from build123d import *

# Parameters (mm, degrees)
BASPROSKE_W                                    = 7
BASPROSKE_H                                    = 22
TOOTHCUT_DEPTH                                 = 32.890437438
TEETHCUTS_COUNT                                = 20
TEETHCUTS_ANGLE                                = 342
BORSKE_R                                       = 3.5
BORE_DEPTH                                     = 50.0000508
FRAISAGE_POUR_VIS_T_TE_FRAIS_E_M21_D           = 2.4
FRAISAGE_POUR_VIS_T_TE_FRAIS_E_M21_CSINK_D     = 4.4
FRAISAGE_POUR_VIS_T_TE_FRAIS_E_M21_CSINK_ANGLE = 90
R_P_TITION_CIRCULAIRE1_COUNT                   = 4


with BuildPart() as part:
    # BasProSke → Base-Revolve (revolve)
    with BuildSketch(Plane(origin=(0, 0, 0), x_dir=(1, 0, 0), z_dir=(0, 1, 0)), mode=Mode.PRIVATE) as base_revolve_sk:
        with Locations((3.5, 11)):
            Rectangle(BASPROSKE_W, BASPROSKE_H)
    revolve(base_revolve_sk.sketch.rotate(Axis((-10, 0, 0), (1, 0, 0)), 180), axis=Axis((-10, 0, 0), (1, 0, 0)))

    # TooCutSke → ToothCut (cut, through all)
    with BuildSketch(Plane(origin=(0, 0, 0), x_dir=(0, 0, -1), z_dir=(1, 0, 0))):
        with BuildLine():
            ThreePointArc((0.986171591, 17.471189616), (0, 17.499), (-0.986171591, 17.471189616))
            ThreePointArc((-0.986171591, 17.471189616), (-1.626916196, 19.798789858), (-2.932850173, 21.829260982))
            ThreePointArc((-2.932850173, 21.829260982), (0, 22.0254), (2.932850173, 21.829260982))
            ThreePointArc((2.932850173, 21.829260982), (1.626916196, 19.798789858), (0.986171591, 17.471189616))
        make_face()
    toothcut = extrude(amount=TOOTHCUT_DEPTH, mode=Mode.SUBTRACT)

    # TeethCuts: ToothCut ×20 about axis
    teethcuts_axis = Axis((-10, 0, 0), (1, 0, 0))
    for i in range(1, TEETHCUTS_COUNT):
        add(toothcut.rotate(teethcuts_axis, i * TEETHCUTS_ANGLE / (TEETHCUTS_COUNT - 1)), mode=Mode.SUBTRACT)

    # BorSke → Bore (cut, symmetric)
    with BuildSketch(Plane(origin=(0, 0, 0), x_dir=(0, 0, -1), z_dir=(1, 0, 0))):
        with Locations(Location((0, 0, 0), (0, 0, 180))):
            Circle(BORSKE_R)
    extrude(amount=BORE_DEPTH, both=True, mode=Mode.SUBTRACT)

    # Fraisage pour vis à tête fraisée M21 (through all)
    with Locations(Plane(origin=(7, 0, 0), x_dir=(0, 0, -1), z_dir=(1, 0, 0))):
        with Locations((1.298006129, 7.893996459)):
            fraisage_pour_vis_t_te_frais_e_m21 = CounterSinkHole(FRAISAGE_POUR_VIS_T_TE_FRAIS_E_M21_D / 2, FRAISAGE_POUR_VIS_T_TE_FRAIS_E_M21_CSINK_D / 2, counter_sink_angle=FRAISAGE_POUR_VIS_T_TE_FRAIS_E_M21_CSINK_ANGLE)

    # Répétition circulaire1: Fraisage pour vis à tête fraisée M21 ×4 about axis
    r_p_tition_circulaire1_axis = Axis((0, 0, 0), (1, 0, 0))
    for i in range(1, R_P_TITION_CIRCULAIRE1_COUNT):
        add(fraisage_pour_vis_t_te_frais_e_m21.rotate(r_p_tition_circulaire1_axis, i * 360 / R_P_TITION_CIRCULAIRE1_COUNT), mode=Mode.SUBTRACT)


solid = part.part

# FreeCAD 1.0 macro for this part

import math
import FreeCAD as App
import Part
import Sketcher

V = App.Vector


def add_polygon(sketch, points):
    """Adds a closed chain of lines whose ends are joined by coincident constraints."""
    first, n = sketch.GeometryCount, len(points)
    for a, b in zip(points, points[1:] + points[:1]):
        sketch.addGeometry(Part.LineSegment(App.Vector(*a, 0), App.Vector(*b, 0)), False)
    for i in range(n):
        sketch.addConstraint(Sketcher.Constraint("Coincident", first + i, 2, first + (i + 1) % n, 1))

doc = App.newDocument("Part")
body = doc.addObject("PartDesign::Body", "Body")

# Sketch on XZ plane
sketch1 = body.newObject("Sketcher::SketchObject", "Sketch")
sketch1.AttachmentSupport = (doc.getObject("XZ_Plane"), [""])
sketch1.MapMode = "FlatFace"
add_polygon(sketch1, [(0, -22), (0, 0), (7, 0), (7, -22)])  # lines 0-3
sketch1.addConstraint([
    Sketcher.Constraint("Vertical", 0),
    Sketcher.Constraint("Horizontal", 1),
    Sketcher.Constraint("Vertical", 2),
    Sketcher.Constraint("Horizontal", 3),
    Sketcher.Constraint("Coincident", 0, 2, -1, 1),
    Sketcher.Constraint("DistanceX", 1, 1, 1, 2, 7.0),
    Sketcher.Constraint("DistanceY", 0, 1, 0, 2, 22.0),
])
revolution = body.newObject("PartDesign::Revolution", "Revolution")
revolution.Profile = sketch1
revolution.ReferenceAxis = (sketch1, ["H_Axis"])
revolution.Angle = 360

# Sketch on YZ plane
sketch2 = body.newObject("Sketcher::SketchObject", "Sketch001")
sketch2.AttachmentSupport = (doc.getObject("YZ_Plane"), [""])
sketch2.MapMode = "FlatFace"
sketch2.addGeometry([
    Part.ArcOfCircle(Part.Circle(V(0, 0, 0), V(0, 0, 1), 17.5), math.radians(-3.23), math.radians(3.23)),
    Part.ArcOfCircle(Part.Circle(V(16.5, -8.9, 0), V(0, 0, 1), 8), math.radians(49), math.radians(83)),
    Part.ArcOfCircle(Part.Circle(V(0, 0, 0), V(0, 0, 1), 22), math.radians(-7.65), math.radians(7.65)),
    Part.ArcOfCircle(Part.Circle(V(16.5, 8.9, 0), V(0, 0, 1), 8), math.radians(-83), math.radians(-49)),
], False)
sketch2.addConstraint([
    Sketcher.Constraint("Coincident", 0, 1, 1, 2),
    Sketcher.Constraint("Coincident", 1, 1, 2, 1),
    Sketcher.Constraint("Coincident", 2, 2, 3, 2),
    Sketcher.Constraint("Coincident", 3, 1, 0, 2),
    Sketcher.Constraint("Coincident", 0, 3, -1, 1),
    Sketcher.Constraint("Coincident", 2, 3, -1, 1),
    Sketcher.Constraint("Equal", 1, 3),
    Sketcher.Constraint("Symmetric", 1, 3, 3, 3, -1),
    Sketcher.Constraint("Radius", 1, 8.0),
    Sketcher.Constraint("Radius", 0, 17.499),
    Sketcher.Constraint("Radius", 2, 22.0254),
    Sketcher.Constraint("DistanceY", 1, 1, 2, 2, 5.8657),
    Sketcher.Constraint("DistanceX", -1, 1, 1, 3, 16.536031),
])
pocket1 = body.newObject("PartDesign::Pocket", "Pocket")
pocket1.Profile = sketch2
pocket1.Type = "ThroughAll"
pocket1.Reversed = True
doc.recompute()

polarpattern = body.newObject("PartDesign::PolarPattern", "PolarPattern")
polarpattern.Originals = [pocket1]
polarpattern.Axis = (doc.getObject("X_Axis"), [""])
polarpattern.Angle = 360
polarpattern.Occurrences = 20
body.Tip = polarpattern

# Sketch on YZ plane
sketch3 = body.newObject("Sketcher::SketchObject", "Sketch002")
sketch3.AttachmentSupport = (doc.getObject("YZ_Plane"), [""])
sketch3.MapMode = "FlatFace"
sketch3.addGeometry(Part.Circle(V(0, 0, 0), V(0, 0, 1), 3.5), False)
sketch3.addConstraint([
    Sketcher.Constraint("Coincident", 0, 3, -1, 1),
    Sketcher.Constraint("Diameter", 0, 7.0),
])
pocket2 = body.newObject("PartDesign::Pocket", "Pocket001")
pocket2.Profile = sketch3
pocket2.Length = 100.000102
pocket2.Midplane = True

# Sketch on YZ plane
sketch4 = body.newObject("Sketcher::SketchObject", "Sketch003")
sketch4.AttachmentSupport = (doc.getObject("YZ_Plane"), [""])
sketch4.MapMode = "FlatFace"
sketch4.AttachmentOffset = App.Placement(V(0, 0, 7), App.Rotation())
sketch4.addGeometry(Part.Circle(V(7.9, -1.3, 0), V(0, 0, 1), 1.2), False)
sketch4.addConstraint([
    Sketcher.Constraint("Diameter", 0, 2.4),
    Sketcher.Constraint("DistanceX", -1, 1, 0, 3, 7.893996),
    Sketcher.Constraint("DistanceY", 0, 3, -1, 1, 1.298006),
])
doc.recompute()
hole = body.newObject("PartDesign::Hole", "Hole")
hole.Profile = sketch4
hole.ThreadType = "None"
hole.Diameter = 2.4
hole.DepthType = "ThroughAll"
hole.HoleCutType = "Countersink"
hole.HoleCutDiameter = 4.4
hole.HoleCutCountersinkAngle = 90
doc.recompute()

polarpattern2 = body.newObject("PartDesign::PolarPattern", "PolarPattern001")
polarpattern2.Originals = [hole]
polarpattern2.Axis = (doc.getObject("X_Axis"), [""])
polarpattern2.Angle = 360
polarpattern2.Occurrences = 4
body.Tip = polarpattern2

doc.recompute()
